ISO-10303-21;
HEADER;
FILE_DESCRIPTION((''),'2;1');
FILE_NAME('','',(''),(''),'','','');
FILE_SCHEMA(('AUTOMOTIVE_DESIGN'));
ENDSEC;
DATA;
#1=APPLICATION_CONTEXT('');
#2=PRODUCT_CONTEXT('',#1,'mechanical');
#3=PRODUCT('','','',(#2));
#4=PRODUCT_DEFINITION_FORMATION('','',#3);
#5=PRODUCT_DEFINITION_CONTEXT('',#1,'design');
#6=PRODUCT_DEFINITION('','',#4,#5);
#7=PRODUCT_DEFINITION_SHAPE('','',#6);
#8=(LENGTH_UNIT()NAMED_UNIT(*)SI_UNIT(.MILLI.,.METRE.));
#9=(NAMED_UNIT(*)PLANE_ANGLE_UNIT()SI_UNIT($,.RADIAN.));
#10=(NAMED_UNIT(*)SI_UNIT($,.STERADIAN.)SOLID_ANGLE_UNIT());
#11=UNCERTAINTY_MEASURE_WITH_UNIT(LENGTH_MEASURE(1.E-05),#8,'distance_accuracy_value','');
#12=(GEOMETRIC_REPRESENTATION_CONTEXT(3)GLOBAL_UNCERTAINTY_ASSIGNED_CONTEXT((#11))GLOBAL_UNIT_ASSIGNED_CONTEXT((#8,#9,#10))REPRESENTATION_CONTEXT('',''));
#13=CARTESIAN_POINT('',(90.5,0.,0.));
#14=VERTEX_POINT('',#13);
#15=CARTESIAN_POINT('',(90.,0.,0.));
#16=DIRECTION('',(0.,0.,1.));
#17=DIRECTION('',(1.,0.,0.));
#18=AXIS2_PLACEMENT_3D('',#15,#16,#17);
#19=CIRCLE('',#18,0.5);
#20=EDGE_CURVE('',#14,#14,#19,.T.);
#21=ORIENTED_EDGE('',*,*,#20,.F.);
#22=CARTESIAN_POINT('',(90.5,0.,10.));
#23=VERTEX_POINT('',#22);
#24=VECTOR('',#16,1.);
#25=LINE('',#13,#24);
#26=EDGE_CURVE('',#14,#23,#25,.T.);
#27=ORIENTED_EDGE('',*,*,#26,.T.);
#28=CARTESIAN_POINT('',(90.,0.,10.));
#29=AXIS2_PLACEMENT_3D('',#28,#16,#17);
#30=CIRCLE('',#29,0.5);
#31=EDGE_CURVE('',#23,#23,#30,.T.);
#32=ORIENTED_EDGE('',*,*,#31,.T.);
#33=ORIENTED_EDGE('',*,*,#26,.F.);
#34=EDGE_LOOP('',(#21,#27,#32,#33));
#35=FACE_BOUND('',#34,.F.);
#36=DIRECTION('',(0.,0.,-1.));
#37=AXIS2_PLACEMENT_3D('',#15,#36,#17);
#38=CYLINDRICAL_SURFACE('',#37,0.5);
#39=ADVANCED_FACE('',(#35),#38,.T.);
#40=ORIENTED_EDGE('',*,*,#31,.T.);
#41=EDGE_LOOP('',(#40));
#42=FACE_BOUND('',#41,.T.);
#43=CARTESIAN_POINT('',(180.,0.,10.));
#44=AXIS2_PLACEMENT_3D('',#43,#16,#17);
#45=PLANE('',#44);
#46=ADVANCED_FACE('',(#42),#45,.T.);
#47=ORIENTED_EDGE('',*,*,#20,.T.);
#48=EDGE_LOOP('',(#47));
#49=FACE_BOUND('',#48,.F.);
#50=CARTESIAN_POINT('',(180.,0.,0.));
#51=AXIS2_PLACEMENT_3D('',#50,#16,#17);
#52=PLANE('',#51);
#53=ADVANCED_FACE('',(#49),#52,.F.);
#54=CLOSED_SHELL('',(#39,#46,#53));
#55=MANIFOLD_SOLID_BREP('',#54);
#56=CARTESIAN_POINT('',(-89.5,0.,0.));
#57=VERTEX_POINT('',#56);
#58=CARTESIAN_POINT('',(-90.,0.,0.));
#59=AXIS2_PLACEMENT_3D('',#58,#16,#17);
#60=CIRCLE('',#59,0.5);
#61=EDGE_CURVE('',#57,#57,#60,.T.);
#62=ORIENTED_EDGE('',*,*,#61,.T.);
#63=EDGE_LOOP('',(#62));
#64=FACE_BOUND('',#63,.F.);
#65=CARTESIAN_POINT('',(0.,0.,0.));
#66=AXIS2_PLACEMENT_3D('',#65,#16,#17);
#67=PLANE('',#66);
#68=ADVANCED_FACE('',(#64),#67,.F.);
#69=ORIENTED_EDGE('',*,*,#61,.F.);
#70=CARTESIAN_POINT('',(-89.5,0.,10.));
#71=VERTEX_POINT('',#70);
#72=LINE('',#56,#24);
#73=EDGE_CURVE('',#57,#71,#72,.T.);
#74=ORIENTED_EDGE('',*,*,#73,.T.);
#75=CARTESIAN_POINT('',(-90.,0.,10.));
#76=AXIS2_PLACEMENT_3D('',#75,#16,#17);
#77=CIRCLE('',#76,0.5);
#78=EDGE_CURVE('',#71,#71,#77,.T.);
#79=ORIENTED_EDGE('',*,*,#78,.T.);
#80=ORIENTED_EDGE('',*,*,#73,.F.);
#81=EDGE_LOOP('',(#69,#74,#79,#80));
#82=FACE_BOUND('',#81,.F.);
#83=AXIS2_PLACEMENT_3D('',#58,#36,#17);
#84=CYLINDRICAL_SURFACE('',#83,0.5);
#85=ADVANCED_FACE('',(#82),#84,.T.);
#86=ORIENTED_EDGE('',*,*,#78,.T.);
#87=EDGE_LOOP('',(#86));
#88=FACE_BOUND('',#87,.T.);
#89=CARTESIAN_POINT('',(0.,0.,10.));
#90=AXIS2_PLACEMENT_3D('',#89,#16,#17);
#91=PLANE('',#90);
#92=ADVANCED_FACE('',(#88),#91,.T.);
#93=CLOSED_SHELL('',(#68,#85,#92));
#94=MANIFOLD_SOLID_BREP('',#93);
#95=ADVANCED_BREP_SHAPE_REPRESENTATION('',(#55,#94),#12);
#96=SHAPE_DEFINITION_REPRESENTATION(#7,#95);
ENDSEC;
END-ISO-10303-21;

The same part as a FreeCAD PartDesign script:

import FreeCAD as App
import Part
import Sketcher

V = App.Vector
Q = App.Units.Quantity

doc = App.newDocument("Part")
params = doc.addObject("Spreadsheet::Sheet", "Params")
for row, (alias, value) in enumerate([
    ("sketch1_diameter", "1 mm"),
    ("pad1_length", "10 mm"),
    ("linearpattern_pitch", "180 mm"),
], start=1):
    params.set(f"A{row}", alias)
    params.set(f"B{row}", "=" + value)
    params.setAlias(f"B{row}", alias)

body = doc.addObject("PartDesign::Body", "Body")
body.AllowCompound = True

# Sketch on XY plane
sketch1 = body.newObject("Sketcher::SketchObject", "Sketch")
sketch1.AttachmentSupport = (doc.getObject("XY_Plane"), [""])
sketch1.MapMode = "FlatFace"
sketch1.addGeometry(Part.Circle(V(-90, 0, 0), V(0, 0, 1), 0.5), False)
sketch1.addConstraint(Sketcher.Constraint("PointOnObject", 0, 3, -1))
sketch1.addConstraint(Sketcher.Constraint("Diameter", 0, Q("1 mm")))
sketch1.addConstraint(Sketcher.Constraint("DistanceX", 0, 3, -1, 1, Q("90 mm")))
sketch1.setExpression("Constraints[1]", "Params.sketch1_diameter")
pad1 = body.newObject("PartDesign::Pad", "Pad")
pad1.Profile = sketch1
pad1.setExpression("Length", "Params.pad1_length")
doc.recompute()

linearpattern = body.newObject("PartDesign::LinearPattern", "LinearPattern")
linearpattern.Originals = [pad1]
linearpattern.Direction = (doc.getObject("X_Axis"), [""])
linearpattern.Mode = "offset"
linearpattern.setExpression("Offset", "Params.linearpattern_pitch")
linearpattern.Occurrences = 2
body.Tip = linearpattern

doc.recompute()
